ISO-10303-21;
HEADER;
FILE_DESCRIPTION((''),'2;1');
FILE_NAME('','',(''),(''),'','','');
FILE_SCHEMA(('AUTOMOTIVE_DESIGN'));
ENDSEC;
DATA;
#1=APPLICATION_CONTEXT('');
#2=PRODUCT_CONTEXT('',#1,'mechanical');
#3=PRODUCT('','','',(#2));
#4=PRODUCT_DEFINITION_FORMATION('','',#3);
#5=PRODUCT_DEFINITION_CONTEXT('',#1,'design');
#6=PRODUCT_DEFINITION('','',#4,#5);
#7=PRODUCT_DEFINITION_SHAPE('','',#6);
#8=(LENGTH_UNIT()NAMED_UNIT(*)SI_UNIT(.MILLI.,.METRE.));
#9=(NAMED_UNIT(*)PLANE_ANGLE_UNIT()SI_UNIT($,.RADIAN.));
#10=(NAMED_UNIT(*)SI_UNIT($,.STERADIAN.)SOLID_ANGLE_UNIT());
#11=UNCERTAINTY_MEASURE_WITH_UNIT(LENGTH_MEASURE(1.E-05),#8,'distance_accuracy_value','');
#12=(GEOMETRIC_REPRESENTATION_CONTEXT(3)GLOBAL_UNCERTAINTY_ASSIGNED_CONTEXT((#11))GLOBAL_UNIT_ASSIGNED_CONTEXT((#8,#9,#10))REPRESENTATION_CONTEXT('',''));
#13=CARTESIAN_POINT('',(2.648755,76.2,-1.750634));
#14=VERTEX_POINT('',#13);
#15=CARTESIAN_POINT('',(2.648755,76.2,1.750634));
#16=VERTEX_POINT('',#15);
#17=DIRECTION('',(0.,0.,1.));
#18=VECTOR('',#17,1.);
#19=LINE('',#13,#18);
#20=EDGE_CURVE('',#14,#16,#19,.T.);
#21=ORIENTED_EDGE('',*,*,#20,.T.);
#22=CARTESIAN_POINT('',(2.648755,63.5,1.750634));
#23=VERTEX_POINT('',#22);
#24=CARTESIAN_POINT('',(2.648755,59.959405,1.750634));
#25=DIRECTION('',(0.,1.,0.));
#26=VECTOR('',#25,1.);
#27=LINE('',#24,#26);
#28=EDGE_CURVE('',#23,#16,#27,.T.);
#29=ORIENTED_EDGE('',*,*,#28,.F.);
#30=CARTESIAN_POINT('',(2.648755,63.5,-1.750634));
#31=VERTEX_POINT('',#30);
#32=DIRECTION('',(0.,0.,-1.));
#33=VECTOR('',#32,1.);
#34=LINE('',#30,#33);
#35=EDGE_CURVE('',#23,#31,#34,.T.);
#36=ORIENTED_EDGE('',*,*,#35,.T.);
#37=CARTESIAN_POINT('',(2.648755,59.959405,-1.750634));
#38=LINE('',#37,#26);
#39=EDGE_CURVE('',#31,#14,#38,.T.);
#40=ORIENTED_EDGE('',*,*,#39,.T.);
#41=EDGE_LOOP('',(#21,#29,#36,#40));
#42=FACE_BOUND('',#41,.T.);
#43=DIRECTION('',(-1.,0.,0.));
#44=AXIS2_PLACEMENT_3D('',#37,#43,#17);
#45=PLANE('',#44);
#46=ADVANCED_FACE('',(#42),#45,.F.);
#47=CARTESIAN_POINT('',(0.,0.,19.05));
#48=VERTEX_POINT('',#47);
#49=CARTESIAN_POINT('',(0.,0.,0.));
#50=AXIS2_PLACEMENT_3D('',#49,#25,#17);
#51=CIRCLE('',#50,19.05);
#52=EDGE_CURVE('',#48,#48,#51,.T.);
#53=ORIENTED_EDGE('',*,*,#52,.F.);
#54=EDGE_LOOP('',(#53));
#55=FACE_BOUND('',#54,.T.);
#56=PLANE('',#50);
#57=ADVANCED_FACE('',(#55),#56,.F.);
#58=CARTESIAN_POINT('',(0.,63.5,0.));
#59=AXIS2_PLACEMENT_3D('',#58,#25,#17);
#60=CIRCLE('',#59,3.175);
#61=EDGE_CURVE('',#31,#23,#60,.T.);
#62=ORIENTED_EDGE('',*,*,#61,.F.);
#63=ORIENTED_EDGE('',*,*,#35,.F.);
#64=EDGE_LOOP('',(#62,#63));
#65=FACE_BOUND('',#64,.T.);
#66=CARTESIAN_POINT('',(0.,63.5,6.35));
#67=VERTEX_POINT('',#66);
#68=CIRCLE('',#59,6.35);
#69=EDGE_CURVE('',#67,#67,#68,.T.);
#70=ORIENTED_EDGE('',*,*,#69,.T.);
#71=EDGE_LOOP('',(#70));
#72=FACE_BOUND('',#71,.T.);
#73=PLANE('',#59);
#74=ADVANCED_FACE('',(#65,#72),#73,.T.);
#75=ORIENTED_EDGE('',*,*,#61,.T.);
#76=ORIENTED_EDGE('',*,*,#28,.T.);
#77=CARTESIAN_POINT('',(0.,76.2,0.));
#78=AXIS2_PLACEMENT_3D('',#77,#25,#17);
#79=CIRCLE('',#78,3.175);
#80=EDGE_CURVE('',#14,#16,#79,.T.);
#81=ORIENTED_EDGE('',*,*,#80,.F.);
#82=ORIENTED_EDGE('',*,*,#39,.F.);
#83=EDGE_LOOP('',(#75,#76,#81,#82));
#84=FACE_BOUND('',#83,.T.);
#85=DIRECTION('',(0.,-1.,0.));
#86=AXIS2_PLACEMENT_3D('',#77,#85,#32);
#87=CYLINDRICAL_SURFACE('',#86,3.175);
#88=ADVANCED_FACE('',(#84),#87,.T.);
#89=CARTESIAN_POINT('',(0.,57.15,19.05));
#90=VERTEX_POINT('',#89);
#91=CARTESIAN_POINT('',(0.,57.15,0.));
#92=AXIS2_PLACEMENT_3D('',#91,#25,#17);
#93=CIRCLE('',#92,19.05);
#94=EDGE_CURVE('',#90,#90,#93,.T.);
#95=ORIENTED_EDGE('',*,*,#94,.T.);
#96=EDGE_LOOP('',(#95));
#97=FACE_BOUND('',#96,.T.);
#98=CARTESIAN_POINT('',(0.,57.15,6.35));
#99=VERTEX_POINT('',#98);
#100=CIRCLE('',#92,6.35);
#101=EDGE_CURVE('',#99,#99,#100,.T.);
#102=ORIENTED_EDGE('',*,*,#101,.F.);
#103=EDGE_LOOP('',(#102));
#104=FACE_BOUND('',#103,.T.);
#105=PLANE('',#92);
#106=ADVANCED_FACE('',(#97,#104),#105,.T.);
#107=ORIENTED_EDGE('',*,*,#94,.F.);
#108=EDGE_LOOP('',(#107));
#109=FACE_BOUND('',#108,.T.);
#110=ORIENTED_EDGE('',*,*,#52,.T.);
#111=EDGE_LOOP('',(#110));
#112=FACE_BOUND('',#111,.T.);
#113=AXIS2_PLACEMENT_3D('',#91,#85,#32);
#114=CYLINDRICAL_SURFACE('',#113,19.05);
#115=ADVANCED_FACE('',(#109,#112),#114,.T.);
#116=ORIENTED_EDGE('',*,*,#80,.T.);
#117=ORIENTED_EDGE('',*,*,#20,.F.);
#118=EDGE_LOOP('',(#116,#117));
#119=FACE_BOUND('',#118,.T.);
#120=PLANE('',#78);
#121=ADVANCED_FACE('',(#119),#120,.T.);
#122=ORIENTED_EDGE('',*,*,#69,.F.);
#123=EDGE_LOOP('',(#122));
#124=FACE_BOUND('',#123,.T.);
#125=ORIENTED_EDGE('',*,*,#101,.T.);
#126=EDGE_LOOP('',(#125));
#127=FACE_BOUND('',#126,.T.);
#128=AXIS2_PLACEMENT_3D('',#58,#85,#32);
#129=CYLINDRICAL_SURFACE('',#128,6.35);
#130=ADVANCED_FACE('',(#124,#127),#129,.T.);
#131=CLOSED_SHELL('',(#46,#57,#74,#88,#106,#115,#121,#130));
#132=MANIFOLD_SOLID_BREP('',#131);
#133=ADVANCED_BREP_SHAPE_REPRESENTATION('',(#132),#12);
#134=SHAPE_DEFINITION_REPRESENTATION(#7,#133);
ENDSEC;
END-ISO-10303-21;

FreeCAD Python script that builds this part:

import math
import FreeCAD as App
import Part
import Sketcher

V = App.Vector
Q = App.Units.Quantity

doc = App.newDocument("Part")
params = doc.addObject("Spreadsheet::Sheet", "Params")
for row, (alias, value) in enumerate([
    ("sketch1_diameter", "1.5 in"),
    ("pad1_length", "2.25 in"),
    ("sketch2_diameter", "0.5 in"),
    ("pad2_length", "0.25 in"),
    ("sketch3_diameter", "0.25 in"),
    ("pad3_length", "0.5 in"),
    ("sketch4_radius", "0.125 in"),
    ("pocket1_length", "0.5 in"),
], start=1):
    params.set(f"A{row}", alias)
    params.set(f"B{row}", "=" + value)
    params.setAlias(f"B{row}", alias)

body = doc.addObject("PartDesign::Body", "Body")

# Sketch on XZ plane
sketch1 = body.newObject("Sketcher::SketchObject", "Sketch")
sketch1.AttachmentSupport = (doc.getObject("XZ_Plane"), [""])
sketch1.MapMode = "FlatFace"
sketch1.addGeometry(Part.Circle(V(0, 0, 0), V(0, 0, 1), 19), False)
sketch1.addConstraint([
    Sketcher.Constraint("Coincident", 0, 3, -1, 1),
    Sketcher.Constraint("Diameter", 0, Q("1.5 in")),
])
sketch1.setExpression("Constraints[1]", "Params.sketch1_diameter")
pad1 = body.newObject("PartDesign::Pad", "Pad")
pad1.Profile = sketch1
pad1.setExpression("Length", "Params.pad1_length")
pad1.Reversed = True

# Sketch on XZ plane
sketch2 = body.newObject("Sketcher::SketchObject", "Sketch001")
sketch2.AttachmentSupport = (doc.getObject("XZ_Plane"), [""])
sketch2.MapMode = "FlatFace"
sketch2.AttachmentOffset = App.Placement(V(0, 0, -2.25 * 25.4), App.Rotation())
sketch2.addGeometry(Part.Circle(V(0, 0, 0), V(0, 0, 1), 6), False)
sketch2.addConstraint([
    Sketcher.Constraint("Coincident", 0, 3, -1, 1),
    Sketcher.Constraint("Diameter", 0, Q("0.5 in")),
])
sketch2.setExpression("Constraints[1]", "Params.sketch2_diameter")
pad2 = body.newObject("PartDesign::Pad", "Pad001")
pad2.Profile = sketch2
pad2.setExpression("Length", "Params.pad2_length")
pad2.Reversed = True

# Sketch on XZ plane
sketch3 = body.newObject("Sketcher::SketchObject", "Sketch002")
sketch3.AttachmentSupport = (doc.getObject("XZ_Plane"), [""])
sketch3.MapMode = "FlatFace"
sketch3.AttachmentOffset = App.Placement(V(0, 0, -2.5 * 25.4), App.Rotation())
sketch3.addGeometry(Part.Circle(V(0, 0, 0), V(0, 0, 1), 3.2), False)
sketch3.addConstraint([
    Sketcher.Constraint("Coincident", 0, 3, -1, 1),
    Sketcher.Constraint("Diameter", 0, Q("0.25 in")),
])
sketch3.setExpression("Constraints[1]", "Params.sketch3_diameter")
pad3 = body.newObject("PartDesign::Pad", "Pad002")
pad3.Profile = sketch3
pad3.setExpression("Length", "Params.pad3_length")
pad3.Reversed = True

# Sketch on XZ plane
sketch4 = body.newObject("Sketcher::SketchObject", "Sketch003")
sketch4.AttachmentSupport = (doc.getObject("XZ_Plane"), [""])
sketch4.MapMode = "FlatFace"
sketch4.AttachmentOffset = App.Placement(V(0, 0, -2.5 * 25.4), App.Rotation())
sketch4.addGeometry([
    Part.LineSegment(V(2.6, -1.8, 0), V(2.6, 1.8, 0)),
    Part.ArcOfCircle(Part.Circle(V(0, 0, 0), V(0, 0, 1), 3.2), math.radians(-33), math.radians(33)),
], False)
sketch4.addConstraint([
    Sketcher.Constraint("Coincident", 0, 1, 1, 1),
    Sketcher.Constraint("Coincident", 1, 2, 0, 2),
    Sketcher.Constraint("Vertical", 0),
    Sketcher.Constraint("Coincident", 1, 3, -1, 1),
    Sketcher.Constraint("Radius", 1, Q("0.125 in")),
    Sketcher.Constraint("DistanceY", 0, 1, 0, 2, Q("3.501268 mm")),
])
sketch4.setExpression("Constraints[4]", "Params.sketch4_radius")
pocket1 = body.newObject("PartDesign::Pocket", "Pocket")
pocket1.Profile = sketch4
pocket1.setExpression("Length", "Params.pocket1_length")

doc.recompute()
